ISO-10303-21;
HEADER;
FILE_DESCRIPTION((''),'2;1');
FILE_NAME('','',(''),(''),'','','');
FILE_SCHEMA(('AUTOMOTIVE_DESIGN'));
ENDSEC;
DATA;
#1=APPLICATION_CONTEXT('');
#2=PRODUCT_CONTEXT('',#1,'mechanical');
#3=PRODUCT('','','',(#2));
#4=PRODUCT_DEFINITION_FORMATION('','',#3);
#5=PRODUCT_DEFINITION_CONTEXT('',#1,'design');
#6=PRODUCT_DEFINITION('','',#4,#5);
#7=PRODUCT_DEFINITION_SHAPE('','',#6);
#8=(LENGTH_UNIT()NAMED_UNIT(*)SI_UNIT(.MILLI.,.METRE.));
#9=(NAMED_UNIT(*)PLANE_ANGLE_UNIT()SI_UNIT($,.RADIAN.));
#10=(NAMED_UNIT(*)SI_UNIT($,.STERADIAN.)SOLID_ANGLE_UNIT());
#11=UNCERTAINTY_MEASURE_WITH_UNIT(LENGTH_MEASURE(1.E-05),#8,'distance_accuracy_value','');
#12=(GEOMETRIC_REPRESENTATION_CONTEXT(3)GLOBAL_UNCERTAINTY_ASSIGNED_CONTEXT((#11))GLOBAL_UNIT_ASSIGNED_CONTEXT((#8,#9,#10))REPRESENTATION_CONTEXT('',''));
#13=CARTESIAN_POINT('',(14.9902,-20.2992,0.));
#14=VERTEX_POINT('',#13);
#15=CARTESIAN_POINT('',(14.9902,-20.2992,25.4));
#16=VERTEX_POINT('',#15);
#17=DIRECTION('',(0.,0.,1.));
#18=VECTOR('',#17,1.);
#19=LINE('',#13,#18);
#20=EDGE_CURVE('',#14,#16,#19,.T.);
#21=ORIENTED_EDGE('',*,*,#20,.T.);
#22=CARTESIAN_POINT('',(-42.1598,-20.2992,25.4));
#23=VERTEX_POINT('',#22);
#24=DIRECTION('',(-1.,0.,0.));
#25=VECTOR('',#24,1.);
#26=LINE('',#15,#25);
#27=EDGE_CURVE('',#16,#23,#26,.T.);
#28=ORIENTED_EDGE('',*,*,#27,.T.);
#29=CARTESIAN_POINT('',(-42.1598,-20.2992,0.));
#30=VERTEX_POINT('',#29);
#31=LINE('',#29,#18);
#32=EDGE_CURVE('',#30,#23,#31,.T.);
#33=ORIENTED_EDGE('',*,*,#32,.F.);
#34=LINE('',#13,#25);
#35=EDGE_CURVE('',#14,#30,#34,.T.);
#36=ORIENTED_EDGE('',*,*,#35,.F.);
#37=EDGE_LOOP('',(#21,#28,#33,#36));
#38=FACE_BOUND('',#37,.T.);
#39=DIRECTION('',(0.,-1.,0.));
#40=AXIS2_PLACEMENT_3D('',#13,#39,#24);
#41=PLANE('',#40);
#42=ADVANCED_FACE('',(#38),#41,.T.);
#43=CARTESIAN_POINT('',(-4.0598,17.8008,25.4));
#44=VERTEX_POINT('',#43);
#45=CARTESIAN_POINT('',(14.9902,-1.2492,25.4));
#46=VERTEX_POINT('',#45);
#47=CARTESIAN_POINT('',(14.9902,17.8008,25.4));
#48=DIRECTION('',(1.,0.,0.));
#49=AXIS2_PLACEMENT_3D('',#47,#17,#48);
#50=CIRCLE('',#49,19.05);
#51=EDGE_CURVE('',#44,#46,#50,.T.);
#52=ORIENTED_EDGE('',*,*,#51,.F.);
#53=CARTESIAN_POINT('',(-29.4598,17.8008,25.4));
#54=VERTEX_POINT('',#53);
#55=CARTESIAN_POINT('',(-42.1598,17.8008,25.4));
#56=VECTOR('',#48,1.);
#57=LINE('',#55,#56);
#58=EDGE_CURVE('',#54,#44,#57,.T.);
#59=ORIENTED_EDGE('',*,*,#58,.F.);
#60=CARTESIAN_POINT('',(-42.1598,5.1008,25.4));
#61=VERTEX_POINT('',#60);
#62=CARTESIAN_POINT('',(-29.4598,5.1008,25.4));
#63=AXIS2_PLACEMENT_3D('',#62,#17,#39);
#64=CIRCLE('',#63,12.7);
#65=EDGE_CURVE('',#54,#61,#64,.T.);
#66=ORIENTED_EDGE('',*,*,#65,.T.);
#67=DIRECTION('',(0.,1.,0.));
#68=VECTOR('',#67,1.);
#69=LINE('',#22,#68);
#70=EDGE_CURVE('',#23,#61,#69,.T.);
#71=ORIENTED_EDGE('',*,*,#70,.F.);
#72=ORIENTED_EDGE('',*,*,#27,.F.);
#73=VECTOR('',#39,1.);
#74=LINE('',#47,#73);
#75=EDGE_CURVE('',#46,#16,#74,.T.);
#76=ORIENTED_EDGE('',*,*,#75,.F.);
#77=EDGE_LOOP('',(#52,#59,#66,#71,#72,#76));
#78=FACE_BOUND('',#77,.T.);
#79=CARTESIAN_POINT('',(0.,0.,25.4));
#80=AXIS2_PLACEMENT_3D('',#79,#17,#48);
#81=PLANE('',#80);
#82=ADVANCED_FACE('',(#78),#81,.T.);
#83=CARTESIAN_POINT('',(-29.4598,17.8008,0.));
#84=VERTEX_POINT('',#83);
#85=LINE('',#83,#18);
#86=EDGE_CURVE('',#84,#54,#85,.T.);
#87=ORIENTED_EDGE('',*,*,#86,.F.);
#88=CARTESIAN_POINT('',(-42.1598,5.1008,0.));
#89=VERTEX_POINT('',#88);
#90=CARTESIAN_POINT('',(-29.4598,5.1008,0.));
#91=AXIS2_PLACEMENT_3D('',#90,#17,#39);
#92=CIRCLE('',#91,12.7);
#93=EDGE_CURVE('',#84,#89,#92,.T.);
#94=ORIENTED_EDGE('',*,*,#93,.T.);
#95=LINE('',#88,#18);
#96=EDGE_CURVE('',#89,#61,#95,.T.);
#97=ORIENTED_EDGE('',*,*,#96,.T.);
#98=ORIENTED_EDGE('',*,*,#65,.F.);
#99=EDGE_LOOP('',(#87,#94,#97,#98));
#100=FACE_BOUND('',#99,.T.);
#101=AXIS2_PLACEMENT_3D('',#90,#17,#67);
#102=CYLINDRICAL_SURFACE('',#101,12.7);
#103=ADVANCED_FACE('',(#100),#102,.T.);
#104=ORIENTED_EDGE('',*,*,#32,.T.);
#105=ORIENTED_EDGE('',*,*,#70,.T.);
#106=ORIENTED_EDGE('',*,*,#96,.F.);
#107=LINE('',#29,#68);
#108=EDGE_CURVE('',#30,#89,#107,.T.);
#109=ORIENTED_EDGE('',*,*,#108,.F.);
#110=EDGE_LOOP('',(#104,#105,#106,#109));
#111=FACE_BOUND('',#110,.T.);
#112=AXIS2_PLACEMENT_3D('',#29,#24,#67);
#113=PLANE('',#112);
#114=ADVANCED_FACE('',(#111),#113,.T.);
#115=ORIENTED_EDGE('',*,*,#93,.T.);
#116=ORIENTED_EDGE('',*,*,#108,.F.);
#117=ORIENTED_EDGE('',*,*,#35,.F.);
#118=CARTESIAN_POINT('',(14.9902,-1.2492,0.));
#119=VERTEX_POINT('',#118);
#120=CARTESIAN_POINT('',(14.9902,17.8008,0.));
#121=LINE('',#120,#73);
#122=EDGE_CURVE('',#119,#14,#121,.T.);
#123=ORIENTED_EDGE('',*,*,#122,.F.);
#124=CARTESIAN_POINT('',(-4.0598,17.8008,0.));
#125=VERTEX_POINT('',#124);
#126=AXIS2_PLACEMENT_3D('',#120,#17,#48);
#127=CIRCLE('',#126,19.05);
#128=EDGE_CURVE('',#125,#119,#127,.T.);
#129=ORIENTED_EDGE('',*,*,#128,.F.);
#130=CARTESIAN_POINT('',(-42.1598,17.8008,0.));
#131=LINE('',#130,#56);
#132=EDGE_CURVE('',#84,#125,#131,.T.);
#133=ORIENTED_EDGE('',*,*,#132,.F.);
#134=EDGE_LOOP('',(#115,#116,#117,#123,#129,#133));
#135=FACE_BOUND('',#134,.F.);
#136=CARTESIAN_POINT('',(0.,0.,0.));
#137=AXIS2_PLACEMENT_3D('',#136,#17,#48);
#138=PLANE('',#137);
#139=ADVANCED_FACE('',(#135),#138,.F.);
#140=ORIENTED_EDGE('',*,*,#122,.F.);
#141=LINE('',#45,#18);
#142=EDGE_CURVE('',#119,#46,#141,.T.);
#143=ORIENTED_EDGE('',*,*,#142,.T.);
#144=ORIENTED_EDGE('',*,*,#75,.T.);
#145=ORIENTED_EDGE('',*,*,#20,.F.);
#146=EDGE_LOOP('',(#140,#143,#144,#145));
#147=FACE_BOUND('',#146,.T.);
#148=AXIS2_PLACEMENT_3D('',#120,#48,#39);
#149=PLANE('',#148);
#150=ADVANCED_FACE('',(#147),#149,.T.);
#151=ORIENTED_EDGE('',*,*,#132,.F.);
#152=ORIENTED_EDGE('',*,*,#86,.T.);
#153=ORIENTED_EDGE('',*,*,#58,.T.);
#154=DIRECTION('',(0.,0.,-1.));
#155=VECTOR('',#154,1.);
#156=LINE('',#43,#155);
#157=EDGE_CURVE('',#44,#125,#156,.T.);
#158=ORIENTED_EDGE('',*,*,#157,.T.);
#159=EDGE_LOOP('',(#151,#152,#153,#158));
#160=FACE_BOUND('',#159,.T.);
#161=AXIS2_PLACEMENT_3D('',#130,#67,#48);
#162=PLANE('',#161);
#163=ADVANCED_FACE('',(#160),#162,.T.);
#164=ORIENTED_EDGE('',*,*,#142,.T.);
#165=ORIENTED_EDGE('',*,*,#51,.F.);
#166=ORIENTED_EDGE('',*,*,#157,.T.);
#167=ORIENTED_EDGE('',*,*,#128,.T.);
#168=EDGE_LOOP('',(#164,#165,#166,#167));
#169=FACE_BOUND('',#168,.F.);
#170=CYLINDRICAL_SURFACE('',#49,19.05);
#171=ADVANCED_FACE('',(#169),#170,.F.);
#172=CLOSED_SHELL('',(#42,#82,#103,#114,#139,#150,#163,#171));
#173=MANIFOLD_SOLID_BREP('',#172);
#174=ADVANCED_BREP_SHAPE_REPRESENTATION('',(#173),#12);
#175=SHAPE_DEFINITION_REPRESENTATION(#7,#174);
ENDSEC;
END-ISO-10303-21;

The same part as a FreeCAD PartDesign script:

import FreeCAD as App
import Part
import Sketcher

V = App.Vector
Q = App.Units.Quantity


def edges_at(feature, points):
    """Names of the edges that pass closest to the given points."""
    edges = feature.Shape.Edges
    near = lambda p: min(range(len(edges)), key=lambda i: edges[i].distToShape(Part.Vertex(*p))[0])
    return sorted({f"Edge{near(p) + 1}" for p in points})


def add_polygon(sketch, points):
    """Adds a closed chain of lines whose ends are joined by coincident constraints."""
    first, n = sketch.GeometryCount, len(points)
    for a, b in zip(points, points[1:] + points[:1]):
        sketch.addGeometry(Part.LineSegment(App.Vector(*a, 0), App.Vector(*b, 0)), False)
    for i in range(n):
        sketch.addConstraint(Sketcher.Constraint("Coincident", first + i, 2, first + (i + 1) % n, 1))

doc = App.newDocument("Part")
body = doc.addObject("PartDesign::Body", "Body")

# Sketch on XY plane
sketch1 = doc.addObject("Sketcher::SketchObject", "Sketch")
body.addObject(sketch1)
sketch1.AttachmentSupport = (doc.XY_Plane, [""])
sketch1.MapMode = "FlatFace"
add_polygon(sketch1, [(15, 18), (-42, 18), (-42, -20), (15, -20)])  # lines 0-3
sketch1.addConstraint([
    Sketcher.Constraint("Horizontal", 0),
    Sketcher.Constraint("Vertical", 1),
    Sketcher.Constraint("Horizontal", 2),
    Sketcher.Constraint("Vertical", 3),
    Sketcher.Constraint("DistanceY", 1, 2, 1, 1, Q("1.5 in")),
    Sketcher.Constraint("DistanceX", 0, 2, 0, 1, Q("2.25 in")),
    Sketcher.Constraint("DistanceX", 0, 2, -1, 1, Q("42.1598 mm")),
    Sketcher.Constraint("DistanceY", -1, 1, 0, 2, Q("17.8008 mm")),
])
pad1 = doc.addObject("PartDesign::Pad", "Pad")
body.addObject(pad1)
pad1.Profile = sketch1
pad1.Length = Q("1 in")
doc.recompute()

fillet = doc.addObject("PartDesign::Fillet", "Fillet")
body.addObject(fillet)
fillet.Base = (pad1, edges_at(pad1, [(-42.16, 17.801, 12.7)]))
fillet.Radius = Q("0.5 in")

# Sketch on XY plane
sketch2 = doc.addObject("Sketcher::SketchObject", "Sketch001")
body.addObject(sketch2)
sketch2.AttachmentSupport = (doc.XY_Plane, [""])
sketch2.MapMode = "FlatFace"
sketch2.AttachmentOffset = App.Placement(V(0, 0, 1 * 25.4), App.Rotation())
sketch2.addGeometry(Part.Circle(V(15, 18, 0), V(0, 0, 1), 19), False)
sketch2.addConstraint([
    Sketcher.Constraint("Diameter", 0, Q("1.5 in")),
    Sketcher.Constraint("DistanceX", -1, 1, 0, 3, Q("14.9902 mm")),
    Sketcher.Constraint("DistanceY", -1, 1, 0, 3, Q("17.8008 mm")),
])
pocket1 = doc.addObject("PartDesign::Pocket", "Pocket")
body.addObject(pocket1)
pocket1.Profile = sketch2
pocket1.Length = Q("1 in")

doc.recompute()
